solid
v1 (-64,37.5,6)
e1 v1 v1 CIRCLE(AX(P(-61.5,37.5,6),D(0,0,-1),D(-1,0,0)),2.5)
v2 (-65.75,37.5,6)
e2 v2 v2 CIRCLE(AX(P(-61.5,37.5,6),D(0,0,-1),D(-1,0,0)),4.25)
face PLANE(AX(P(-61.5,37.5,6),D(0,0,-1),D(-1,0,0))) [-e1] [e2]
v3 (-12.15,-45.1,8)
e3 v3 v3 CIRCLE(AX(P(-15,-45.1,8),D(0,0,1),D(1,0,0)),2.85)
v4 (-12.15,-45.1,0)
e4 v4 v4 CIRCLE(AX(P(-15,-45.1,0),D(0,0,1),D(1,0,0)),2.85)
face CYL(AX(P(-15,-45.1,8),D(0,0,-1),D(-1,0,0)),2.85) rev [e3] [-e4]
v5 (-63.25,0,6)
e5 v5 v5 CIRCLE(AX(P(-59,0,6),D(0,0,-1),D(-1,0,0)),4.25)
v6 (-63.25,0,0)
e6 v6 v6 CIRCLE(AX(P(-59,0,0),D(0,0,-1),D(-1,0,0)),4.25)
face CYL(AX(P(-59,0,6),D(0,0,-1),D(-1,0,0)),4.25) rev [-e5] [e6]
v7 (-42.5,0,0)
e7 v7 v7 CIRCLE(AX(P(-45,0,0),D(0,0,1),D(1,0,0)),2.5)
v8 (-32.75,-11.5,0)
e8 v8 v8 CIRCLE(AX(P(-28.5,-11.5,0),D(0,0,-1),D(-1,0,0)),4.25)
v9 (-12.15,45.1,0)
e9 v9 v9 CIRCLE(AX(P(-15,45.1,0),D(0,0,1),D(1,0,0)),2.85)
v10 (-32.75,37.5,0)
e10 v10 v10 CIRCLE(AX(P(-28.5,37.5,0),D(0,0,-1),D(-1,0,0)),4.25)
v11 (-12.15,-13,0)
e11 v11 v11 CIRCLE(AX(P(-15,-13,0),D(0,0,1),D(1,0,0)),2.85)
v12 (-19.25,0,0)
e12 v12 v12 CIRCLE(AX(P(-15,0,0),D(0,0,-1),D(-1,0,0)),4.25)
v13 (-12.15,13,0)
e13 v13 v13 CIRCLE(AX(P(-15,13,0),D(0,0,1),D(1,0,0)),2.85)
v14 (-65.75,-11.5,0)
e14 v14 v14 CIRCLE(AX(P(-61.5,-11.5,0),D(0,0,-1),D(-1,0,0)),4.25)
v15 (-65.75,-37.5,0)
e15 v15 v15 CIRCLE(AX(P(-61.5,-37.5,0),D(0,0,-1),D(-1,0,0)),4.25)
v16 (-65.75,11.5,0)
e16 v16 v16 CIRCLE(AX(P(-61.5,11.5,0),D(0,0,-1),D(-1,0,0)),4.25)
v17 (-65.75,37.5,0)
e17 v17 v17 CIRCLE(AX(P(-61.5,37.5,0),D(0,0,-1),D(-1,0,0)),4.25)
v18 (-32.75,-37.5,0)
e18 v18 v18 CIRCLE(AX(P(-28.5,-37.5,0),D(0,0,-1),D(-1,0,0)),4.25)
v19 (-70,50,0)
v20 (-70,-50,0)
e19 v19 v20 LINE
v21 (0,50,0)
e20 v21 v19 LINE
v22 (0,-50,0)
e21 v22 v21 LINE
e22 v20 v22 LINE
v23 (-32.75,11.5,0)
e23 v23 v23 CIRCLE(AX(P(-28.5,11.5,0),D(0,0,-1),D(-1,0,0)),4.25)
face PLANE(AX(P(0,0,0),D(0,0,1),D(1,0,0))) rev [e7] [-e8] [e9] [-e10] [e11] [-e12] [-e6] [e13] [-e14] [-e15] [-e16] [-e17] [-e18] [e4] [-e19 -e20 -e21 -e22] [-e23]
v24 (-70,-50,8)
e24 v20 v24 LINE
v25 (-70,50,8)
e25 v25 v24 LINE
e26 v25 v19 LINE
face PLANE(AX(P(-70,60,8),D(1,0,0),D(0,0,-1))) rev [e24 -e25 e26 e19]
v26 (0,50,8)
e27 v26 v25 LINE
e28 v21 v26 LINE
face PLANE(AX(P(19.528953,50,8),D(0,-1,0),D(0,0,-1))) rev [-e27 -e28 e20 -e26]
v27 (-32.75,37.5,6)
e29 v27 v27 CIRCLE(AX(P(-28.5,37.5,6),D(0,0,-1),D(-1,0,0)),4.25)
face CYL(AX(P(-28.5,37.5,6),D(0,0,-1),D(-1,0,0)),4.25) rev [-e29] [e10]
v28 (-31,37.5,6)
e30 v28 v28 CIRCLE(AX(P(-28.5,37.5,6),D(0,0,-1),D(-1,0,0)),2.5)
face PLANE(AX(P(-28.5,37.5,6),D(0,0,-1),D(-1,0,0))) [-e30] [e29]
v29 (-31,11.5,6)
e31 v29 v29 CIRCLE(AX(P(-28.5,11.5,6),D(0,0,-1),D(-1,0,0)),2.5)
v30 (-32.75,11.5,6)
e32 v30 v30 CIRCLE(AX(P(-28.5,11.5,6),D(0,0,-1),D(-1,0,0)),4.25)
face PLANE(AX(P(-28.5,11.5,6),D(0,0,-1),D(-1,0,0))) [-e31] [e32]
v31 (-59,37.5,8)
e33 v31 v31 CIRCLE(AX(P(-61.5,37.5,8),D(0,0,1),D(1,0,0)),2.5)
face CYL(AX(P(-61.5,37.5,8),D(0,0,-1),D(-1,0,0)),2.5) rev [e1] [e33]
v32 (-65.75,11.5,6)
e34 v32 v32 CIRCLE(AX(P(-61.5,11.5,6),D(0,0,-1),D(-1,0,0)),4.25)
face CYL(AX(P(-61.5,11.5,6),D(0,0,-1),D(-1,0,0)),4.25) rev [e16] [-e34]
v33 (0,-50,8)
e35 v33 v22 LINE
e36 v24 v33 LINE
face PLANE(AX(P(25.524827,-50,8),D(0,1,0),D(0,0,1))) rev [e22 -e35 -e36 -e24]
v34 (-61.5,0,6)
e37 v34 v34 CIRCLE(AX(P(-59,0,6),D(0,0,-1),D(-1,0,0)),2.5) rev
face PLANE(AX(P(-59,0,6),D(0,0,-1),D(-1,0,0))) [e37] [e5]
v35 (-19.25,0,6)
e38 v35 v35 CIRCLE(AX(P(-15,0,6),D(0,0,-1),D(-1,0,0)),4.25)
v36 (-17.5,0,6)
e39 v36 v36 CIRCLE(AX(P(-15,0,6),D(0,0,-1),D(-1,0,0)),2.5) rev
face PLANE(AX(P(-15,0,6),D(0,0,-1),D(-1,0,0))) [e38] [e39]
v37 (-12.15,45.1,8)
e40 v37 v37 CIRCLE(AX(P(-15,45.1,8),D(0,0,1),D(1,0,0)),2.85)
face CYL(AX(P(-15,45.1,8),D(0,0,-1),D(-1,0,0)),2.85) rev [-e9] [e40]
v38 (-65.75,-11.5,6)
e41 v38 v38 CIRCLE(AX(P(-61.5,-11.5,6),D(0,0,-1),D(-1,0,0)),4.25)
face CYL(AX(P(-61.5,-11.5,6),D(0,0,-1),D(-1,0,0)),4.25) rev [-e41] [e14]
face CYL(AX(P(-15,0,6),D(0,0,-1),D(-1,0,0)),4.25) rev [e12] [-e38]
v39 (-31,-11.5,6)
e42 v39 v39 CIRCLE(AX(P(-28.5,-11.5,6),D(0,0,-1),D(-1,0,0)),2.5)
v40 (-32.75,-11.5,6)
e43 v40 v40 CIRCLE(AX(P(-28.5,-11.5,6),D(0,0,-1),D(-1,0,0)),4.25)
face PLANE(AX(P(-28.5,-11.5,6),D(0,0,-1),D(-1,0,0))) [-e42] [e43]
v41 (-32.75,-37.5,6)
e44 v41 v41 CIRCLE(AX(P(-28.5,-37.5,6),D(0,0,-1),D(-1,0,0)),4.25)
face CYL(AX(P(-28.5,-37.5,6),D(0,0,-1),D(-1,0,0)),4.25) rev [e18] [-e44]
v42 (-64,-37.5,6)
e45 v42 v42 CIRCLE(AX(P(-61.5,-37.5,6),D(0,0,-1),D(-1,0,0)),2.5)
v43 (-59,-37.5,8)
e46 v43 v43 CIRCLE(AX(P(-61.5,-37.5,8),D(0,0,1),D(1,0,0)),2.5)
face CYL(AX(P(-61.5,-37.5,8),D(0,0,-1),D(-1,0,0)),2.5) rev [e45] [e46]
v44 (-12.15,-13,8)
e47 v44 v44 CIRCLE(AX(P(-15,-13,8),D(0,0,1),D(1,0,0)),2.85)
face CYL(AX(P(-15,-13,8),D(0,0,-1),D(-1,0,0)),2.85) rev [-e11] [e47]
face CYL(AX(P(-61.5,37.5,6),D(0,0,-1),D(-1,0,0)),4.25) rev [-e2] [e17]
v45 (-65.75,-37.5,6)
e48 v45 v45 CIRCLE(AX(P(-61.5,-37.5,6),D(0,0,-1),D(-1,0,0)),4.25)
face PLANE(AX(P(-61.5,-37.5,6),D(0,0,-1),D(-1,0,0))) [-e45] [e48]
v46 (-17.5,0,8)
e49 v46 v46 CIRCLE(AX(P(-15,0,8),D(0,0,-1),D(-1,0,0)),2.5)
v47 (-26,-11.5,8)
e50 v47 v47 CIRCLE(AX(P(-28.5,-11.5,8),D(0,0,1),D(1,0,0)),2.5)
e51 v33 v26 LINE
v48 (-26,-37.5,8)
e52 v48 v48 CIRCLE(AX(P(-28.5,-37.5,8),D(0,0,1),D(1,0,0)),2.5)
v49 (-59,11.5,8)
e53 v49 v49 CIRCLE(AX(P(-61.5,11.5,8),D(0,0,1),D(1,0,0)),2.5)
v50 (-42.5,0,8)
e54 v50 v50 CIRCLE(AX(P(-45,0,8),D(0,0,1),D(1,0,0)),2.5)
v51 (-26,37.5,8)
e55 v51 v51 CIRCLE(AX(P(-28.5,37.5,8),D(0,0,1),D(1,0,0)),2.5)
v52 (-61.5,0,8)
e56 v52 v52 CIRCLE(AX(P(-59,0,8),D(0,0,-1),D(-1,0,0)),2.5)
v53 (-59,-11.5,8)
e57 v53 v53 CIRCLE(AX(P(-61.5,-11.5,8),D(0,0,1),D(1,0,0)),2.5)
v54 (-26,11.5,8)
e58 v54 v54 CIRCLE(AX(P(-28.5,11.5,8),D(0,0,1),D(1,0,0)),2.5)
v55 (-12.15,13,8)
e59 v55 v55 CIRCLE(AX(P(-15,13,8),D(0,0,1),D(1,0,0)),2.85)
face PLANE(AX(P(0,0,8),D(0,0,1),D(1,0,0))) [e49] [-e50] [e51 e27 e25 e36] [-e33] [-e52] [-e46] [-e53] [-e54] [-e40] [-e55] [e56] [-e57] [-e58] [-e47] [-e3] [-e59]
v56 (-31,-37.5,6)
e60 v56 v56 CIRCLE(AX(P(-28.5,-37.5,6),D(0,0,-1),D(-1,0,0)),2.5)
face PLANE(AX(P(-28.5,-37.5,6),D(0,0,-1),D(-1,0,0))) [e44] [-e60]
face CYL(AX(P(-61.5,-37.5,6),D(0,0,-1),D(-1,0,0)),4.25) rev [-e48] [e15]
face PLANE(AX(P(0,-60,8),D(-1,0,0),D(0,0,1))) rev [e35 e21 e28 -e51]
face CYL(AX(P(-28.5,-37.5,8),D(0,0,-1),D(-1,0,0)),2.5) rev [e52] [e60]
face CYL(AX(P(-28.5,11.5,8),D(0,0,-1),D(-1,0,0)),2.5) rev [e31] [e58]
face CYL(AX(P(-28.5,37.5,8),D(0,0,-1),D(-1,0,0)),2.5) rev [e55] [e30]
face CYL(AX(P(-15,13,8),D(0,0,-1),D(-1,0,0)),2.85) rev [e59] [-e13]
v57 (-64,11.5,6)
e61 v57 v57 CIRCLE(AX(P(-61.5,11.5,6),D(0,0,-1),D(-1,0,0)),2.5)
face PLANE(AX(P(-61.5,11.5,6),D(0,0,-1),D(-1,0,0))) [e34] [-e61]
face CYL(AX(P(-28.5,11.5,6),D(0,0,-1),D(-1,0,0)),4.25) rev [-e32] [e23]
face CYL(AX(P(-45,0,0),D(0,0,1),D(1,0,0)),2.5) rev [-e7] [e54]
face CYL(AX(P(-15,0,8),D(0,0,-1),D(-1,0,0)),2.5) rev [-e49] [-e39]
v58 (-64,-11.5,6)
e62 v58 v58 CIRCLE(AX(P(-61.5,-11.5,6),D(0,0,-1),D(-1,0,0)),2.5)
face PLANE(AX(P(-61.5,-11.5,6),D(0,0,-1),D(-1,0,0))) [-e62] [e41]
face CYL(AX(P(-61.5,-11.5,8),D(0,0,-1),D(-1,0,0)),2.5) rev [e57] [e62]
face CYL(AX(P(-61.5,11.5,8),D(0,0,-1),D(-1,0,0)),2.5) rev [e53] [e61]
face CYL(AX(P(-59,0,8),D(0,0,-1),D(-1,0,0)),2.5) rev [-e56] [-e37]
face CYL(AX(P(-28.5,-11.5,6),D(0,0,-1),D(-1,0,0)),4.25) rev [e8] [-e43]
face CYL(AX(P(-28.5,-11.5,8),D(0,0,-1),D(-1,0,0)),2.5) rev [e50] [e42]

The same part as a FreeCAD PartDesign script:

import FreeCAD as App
import Part
import Sketcher
Q = App.Units.Quantity

doc = App.newDocument("Part")
body = doc.addObject("PartDesign::Body", "Body")

sketch1 = doc.addObject("Sketcher::SketchObject", "Sketch")
body.addObject(sketch1)
sketch1.AttachmentSupport = (doc.XY_Plane, [""])
sketch1.MapMode = "FlatFace"
sketch1.addGeometry([
    Part.LineSegment(App.Vector(-70, 60, 0), App.Vector(-70, -60, 0)),
    Part.LineSegment(App.Vector(-70, -60, 0), App.Vector(0, -60, 0)),
    Part.LineSegment(App.Vector(0, -60, 0), App.Vector(0, 60, 0)),
    Part.LineSegment(App.Vector(0, 60, 0), App.Vector(-70, 60, 0)),
    Part.Circle(App.Vector(-61.5, -37.5, 0), App.Vector(0, 0, 1), 2.5),
    Part.Circle(App.Vector(-61.5, -11.5, 0), App.Vector(0, 0, 1), 2.5),
    Part.Circle(App.Vector(-28.5, -37.5, 0), App.Vector(0, 0, 1), 2.5),
    Part.Circle(App.Vector(-15, -45.1, 0), App.Vector(0, 0, 1), 2.9),
    Part.Circle(App.Vector(-28.5, -11.5, 0), App.Vector(0, 0, 1), 2.5),
    Part.Circle(App.Vector(-15, -13, 0), App.Vector(0, 0, 1), 2.9),
    Part.Circle(App.Vector(-61.5, 11.5, 0), App.Vector(0, 0, 1), 2.5),
    Part.Circle(App.Vector(-61.5, 37.5, 0), App.Vector(0, 0, 1), 2.5),
    Part.Circle(App.Vector(-28.5, 11.5, 0), App.Vector(0, 0, 1), 2.5),
    Part.Circle(App.Vector(-15, 13, 0), App.Vector(0, 0, 1), 2.9),
    Part.Circle(App.Vector(-28.5, 37.5, 0), App.Vector(0, 0, 1), 2.5),
    Part.Circle(App.Vector(-15, 45.1, 0), App.Vector(0, 0, 1), 2.9),
], False)
sketch1.addConstraint([
    Sketcher.Constraint("Coincident", 0, 2, 1, 1),
    Sketcher.Constraint("Coincident", 1, 2, 2, 1),
    Sketcher.Constraint("Coincident", 2, 2, 3, 1),
    Sketcher.Constraint("Coincident", 3, 2, 0, 1),
    Sketcher.Constraint("Vertical", 0),
    Sketcher.Constraint("Horizontal", 1),
    Sketcher.Constraint("Vertical", 2),
    Sketcher.Constraint("Horizontal", 3),
    Sketcher.Constraint("Equal", 4, 5),
    Sketcher.Constraint("Equal", 5, 6),
    Sketcher.Constraint("Equal", 6, 8),
    Sketcher.Constraint("Equal", 7, 9),
    Sketcher.Constraint("Equal", 8, 10),
    Sketcher.Constraint("Equal", 10, 11),
    Sketcher.Constraint("Equal", 11, 12),
    Sketcher.Constraint("Equal", 9, 13),
    Sketcher.Constraint("Equal", 12, 14),
    Sketcher.Constraint("Equal", 13, 15),
    Sketcher.Constraint("Symmetric", 1, 2, 2, 2, -1, 1),
    Sketcher.Constraint("Symmetric", 5, 3, 10, 3, -1),
    Sketcher.Constraint("Symmetric", 4, 3, 11, 3, -1),
    Sketcher.Constraint("Symmetric", 8, 3, 12, 3, -1),
    Sketcher.Constraint("Symmetric", 9, 3, 13, 3, -1),
    Sketcher.Constraint("Symmetric", 6, 3, 14, 3, -1),
    Sketcher.Constraint("Symmetric", 7, 3, 15, 3, -1),
    Sketcher.Constraint("Horizontal", 4, 3, 6, 3),
    Sketcher.Constraint("Horizontal", 5, 3, 8, 3),
    Sketcher.Constraint("Vertical", 4, 3, 5, 3),
    Sketcher.Constraint("Vertical", 6, 3, 8, 3),
    Sketcher.Constraint("Vertical", 7, 3, 9, 3),
    Sketcher.Constraint("Diameter", 4, Q("5 mm")),
    Sketcher.Constraint("Diameter", 7, Q("5.7 mm")),
    Sketcher.Constraint("DistanceX", 1, 1, 1, 2, Q("70 mm")),
    Sketcher.Constraint("DistanceY", 0, 2, 0, 1, Q("120 mm")),
    Sketcher.Constraint("DistanceX", 7, 3, -1, 1, Q("15 mm")),
    Sketcher.Constraint("DistanceY", 9, 3, -1, 1, Q("13 mm")),
    Sketcher.Constraint("DistanceY", 4, 3, 5, 3, Q("26 mm")),
    Sketcher.Constraint("DistanceX", 4, 3, 6, 3, Q("33 mm")),
    Sketcher.Constraint("DistanceY", 5, 3, 10, 3, Q("23 mm")),
    Sketcher.Constraint("DistanceX", 4, 3, -1, 1, Q("61.5 mm")),
    Sketcher.Constraint("DistanceY", 7, 3, -1, 1, Q("45.1 mm")),
])
pad1 = doc.addObject("PartDesign::Pad", "Pad")
body.addObject(pad1)
pad1.Profile = sketch1
pad1.Length = 8

sketch2 = doc.addObject("Sketcher::SketchObject", "Sketch001")
body.addObject(sketch2)
sketch2.AttachmentSupport = (doc.XY_Plane, [""])
sketch2.MapMode = "FlatFace"
sketch2.AttachmentOffset = App.Placement(App.Vector(0, 0, 8), App.Rotation())
sketch2.addGeometry(Part.Circle(App.Vector(-45, 0, 0), App.Vector(0, 0, 1), 2.5), False)
sketch2.addConstraint([
    Sketcher.Constraint("PointOnObject", 0, 3, -1),
    Sketcher.Constraint("Diameter", 0, Q("5 mm")),
    Sketcher.Constraint("DistanceX", 0, 3, -1, 1, Q("45 mm")),
])
pocket1 = doc.addObject("PartDesign::Pocket", "Pocket")
body.addObject(pocket1)
pocket1.Profile = sketch2
pocket1.Type = "ThroughAll"

sketch3 = doc.addObject("Sketcher::SketchObject", "Sketch002")
body.addObject(sketch3)
sketch3.AttachmentSupport = (doc.XY_Plane, [""])
sketch3.MapMode = "FlatFace"
sketch3.addGeometry([
    Part.LineSegment(App.Vector(20, 68, 0), App.Vector(20, 50, 0)),
    Part.LineSegment(App.Vector(20, 50, 0), App.Vector(-87, 50, 0)),
    Part.LineSegment(App.Vector(-87, 50, 0), App.Vector(-87, 68, 0)),
    Part.LineSegment(App.Vector(-87, 68, 0), App.Vector(20, 68, 0)),
    Part.LineSegment(App.Vector(26, -50, 0), App.Vector(26, -66, 0)),
    Part.LineSegment(App.Vector(26, -66, 0), App.Vector(-95, -66, 0)),
    Part.LineSegment(App.Vector(-95, -66, 0), App.Vector(-95, -50, 0)),
    Part.LineSegment(App.Vector(-95, -50, 0), App.Vector(26, -50, 0)),
], False)
sketch3.addConstraint([
    Sketcher.Constraint("Coincident", 0, 2, 1, 1),
    Sketcher.Constraint("Coincident", 1, 2, 2, 1),
    Sketcher.Constraint("Coincident", 2, 2, 3, 1),
    Sketcher.Constraint("Coincident", 3, 2, 0, 1),
    Sketcher.Constraint("Coincident", 4, 2, 5, 1),
    Sketcher.Constraint("Coincident", 5, 2, 6, 1),
    Sketcher.Constraint("Coincident", 6, 2, 7, 1),
    Sketcher.Constraint("Coincident", 7, 2, 4, 1),
    Sketcher.Constraint("Vertical", 0),
    Sketcher.Constraint("Horizontal", 1),
    Sketcher.Constraint("Vertical", 2),
    Sketcher.Constraint("Horizontal", 3),
    Sketcher.Constraint("Vertical", 4),
    Sketcher.Constraint("Horizontal", 5),
    Sketcher.Constraint("Vertical", 6),
    Sketcher.Constraint("Horizontal", 7),
    Sketcher.Constraint("DistanceY", -1, 1, 0, 2, Q("50 mm")),
    Sketcher.Constraint("DistanceY", 6, 2, -1, 1, Q("50 mm")),
    Sketcher.Constraint("DistanceY", 0, 2, 0, 1, Q("17.825571 mm")),
    Sketcher.Constraint("DistanceX", 1, 2, 1, 1, Q("106.143176 mm")),
    Sketcher.Constraint("DistanceX", 5, 2, 5, 1, Q("120.889785 mm")),
    Sketcher.Constraint("DistanceY", 4, 2, 4, 1, Q("15.718913 mm")),
    Sketcher.Constraint("DistanceX", 1, 2, 4, 2, Q("112.13905 mm")),
    Sketcher.Constraint("DistanceX", -1, 1, 0, 2, Q("19.528953 mm")),
])
pocket2 = doc.addObject("PartDesign::Pocket", "Pocket001")
body.addObject(pocket2)
pocket2.Profile = sketch3
pocket2.Type = "ThroughAll"
pocket2.Reversed = True

sketch4 = doc.addObject("Sketcher::SketchObject", "Sketch003")
body.addObject(sketch4)
sketch4.AttachmentSupport = (doc.XY_Plane, [""])
sketch4.MapMode = "FlatFace"
sketch4.addGeometry([
    Part.Circle(App.Vector(-59, 0, 0), App.Vector(0, 0, 1), 2.5),
    Part.Circle(App.Vector(-15, 0, 0), App.Vector(0, 0, 1), 2.5),
], False)
sketch4.addConstraint([
    Sketcher.Constraint("Equal", 0, 1),
    Sketcher.Constraint("PointOnObject", 0, 3, -1),
    Sketcher.Constraint("PointOnObject", 1, 3, -1),
    Sketcher.Constraint("Diameter", 0, Q("5 mm")),
    Sketcher.Constraint("DistanceX", 0, 3, -1, 1, Q("59 mm")),
    Sketcher.Constraint("DistanceX", 1, 3, -1, 1, Q("15 mm")),
])
pocket3 = doc.addObject("PartDesign::Pocket", "Pocket002")
body.addObject(pocket3)
pocket3.Profile = sketch4
pocket3.Type = "ThroughAll"
pocket3.Reversed = True

sketch5 = doc.addObject("Sketcher::SketchObject", "Sketch004")
body.addObject(sketch5)
sketch5.AttachmentSupport = (doc.XY_Plane, [""])
sketch5.MapMode = "FlatFace"
sketch5.addGeometry([
    Part.Circle(App.Vector(-28.5, 37.5, 0), App.Vector(0, 0, 1), 4.2),
    Part.Circle(App.Vector(-61.5, 37.5, 0), App.Vector(0, 0, 1), 4.2),
    Part.Circle(App.Vector(-28.5, 11.5, 0), App.Vector(0, 0, 1), 4.2),
    Part.Circle(App.Vector(-61.5, 11.5, 0), App.Vector(0, 0, 1), 4.2),
    Part.Circle(App.Vector(-28.5, -11.5, 0), App.Vector(0, 0, 1), 4.2),
    Part.Circle(App.Vector(-61.5, -11.5, 0), App.Vector(0, 0, 1), 4.2),
    Part.Circle(App.Vector(-61.5, -37.5, 0), App.Vector(0, 0, 1), 4.2),
    Part.Circle(App.Vector(-28.5, -37.5, 0), App.Vector(0, 0, 1), 4.2),
], False)
sketch5.addConstraint([
    Sketcher.Constraint("Equal", 0, 1),
    Sketcher.Constraint("Equal", 1, 2),
    Sketcher.Constraint("Equal", 2, 3),
    Sketcher.Constraint("Equal", 3, 4),
    Sketcher.Constraint("Equal", 4, 5),
    Sketcher.Constraint("Equal", 5, 6),
    Sketcher.Constraint("Equal", 6, 7),
    Sketcher.Constraint("Symmetric", 2, 3, 4, 3, -1),
    Sketcher.Constraint("Symmetric", 3, 3, 5, 3, -1),
    Sketcher.Constraint("Symmetric", 1, 3, 6, 3, -1),
    Sketcher.Constraint("Symmetric", 0, 3, 7, 3, -1),
    Sketcher.Constraint("Horizontal", 0, 3, 1, 3),
    Sketcher.Constraint("Horizontal", 2, 3, 3, 3),
    Sketcher.Constraint("Vertical", 0, 3, 2, 3),
    Sketcher.Constraint("Vertical", 1, 3, 3, 3),
    Sketcher.Constraint("Diameter", 0, Q("8.5 mm")),
    Sketcher.Constraint("DistanceX", 1, 3, 0, 3, Q("33 mm")),
    Sketcher.Constraint("DistanceY", 2, 3, 0, 3, Q("26 mm")),
    Sketcher.Constraint("DistanceY", 4, 3, 2, 3, Q("23 mm")),
    Sketcher.Constraint("DistanceX", 0, 3, -1, 1, Q("28.5 mm")),
])
pocket4 = doc.addObject("PartDesign::Pocket", "Pocket003")
body.addObject(pocket4)
pocket4.Profile = sketch5
pocket4.Length = 6
pocket4.Reversed = True

sketch6 = doc.addObject("Sketcher::SketchObject", "Sketch005")
body.addObject(sketch6)
sketch6.AttachmentSupport = (doc.XY_Plane, [""])
sketch6.MapMode = "FlatFace"
sketch6.addGeometry([
    Part.Circle(App.Vector(-15, 0, 0), App.Vector(0, 0, 1), 4.2),
    Part.Circle(App.Vector(-59, 0, 0), App.Vector(0, 0, 1), 4.2),
], False)
sketch6.addConstraint([
    Sketcher.Constraint("Equal", 0, 1),
    Sketcher.Constraint("PointOnObject", 0, 3, -1),
    Sketcher.Constraint("PointOnObject", 1, 3, -1),
    Sketcher.Constraint("Diameter", 0, Q("8.5 mm")),
    Sketcher.Constraint("DistanceX", 0, 3, -1, 1, Q("15 mm")),
    Sketcher.Constraint("DistanceX", 1, 3, -1, 1, Q("59 mm")),
])
pocket5 = doc.addObject("PartDesign::Pocket", "Pocket004")
body.addObject(pocket5)
pocket5.Profile = sketch6
pocket5.Length = 6
pocket5.Reversed = True

doc.recompute()
